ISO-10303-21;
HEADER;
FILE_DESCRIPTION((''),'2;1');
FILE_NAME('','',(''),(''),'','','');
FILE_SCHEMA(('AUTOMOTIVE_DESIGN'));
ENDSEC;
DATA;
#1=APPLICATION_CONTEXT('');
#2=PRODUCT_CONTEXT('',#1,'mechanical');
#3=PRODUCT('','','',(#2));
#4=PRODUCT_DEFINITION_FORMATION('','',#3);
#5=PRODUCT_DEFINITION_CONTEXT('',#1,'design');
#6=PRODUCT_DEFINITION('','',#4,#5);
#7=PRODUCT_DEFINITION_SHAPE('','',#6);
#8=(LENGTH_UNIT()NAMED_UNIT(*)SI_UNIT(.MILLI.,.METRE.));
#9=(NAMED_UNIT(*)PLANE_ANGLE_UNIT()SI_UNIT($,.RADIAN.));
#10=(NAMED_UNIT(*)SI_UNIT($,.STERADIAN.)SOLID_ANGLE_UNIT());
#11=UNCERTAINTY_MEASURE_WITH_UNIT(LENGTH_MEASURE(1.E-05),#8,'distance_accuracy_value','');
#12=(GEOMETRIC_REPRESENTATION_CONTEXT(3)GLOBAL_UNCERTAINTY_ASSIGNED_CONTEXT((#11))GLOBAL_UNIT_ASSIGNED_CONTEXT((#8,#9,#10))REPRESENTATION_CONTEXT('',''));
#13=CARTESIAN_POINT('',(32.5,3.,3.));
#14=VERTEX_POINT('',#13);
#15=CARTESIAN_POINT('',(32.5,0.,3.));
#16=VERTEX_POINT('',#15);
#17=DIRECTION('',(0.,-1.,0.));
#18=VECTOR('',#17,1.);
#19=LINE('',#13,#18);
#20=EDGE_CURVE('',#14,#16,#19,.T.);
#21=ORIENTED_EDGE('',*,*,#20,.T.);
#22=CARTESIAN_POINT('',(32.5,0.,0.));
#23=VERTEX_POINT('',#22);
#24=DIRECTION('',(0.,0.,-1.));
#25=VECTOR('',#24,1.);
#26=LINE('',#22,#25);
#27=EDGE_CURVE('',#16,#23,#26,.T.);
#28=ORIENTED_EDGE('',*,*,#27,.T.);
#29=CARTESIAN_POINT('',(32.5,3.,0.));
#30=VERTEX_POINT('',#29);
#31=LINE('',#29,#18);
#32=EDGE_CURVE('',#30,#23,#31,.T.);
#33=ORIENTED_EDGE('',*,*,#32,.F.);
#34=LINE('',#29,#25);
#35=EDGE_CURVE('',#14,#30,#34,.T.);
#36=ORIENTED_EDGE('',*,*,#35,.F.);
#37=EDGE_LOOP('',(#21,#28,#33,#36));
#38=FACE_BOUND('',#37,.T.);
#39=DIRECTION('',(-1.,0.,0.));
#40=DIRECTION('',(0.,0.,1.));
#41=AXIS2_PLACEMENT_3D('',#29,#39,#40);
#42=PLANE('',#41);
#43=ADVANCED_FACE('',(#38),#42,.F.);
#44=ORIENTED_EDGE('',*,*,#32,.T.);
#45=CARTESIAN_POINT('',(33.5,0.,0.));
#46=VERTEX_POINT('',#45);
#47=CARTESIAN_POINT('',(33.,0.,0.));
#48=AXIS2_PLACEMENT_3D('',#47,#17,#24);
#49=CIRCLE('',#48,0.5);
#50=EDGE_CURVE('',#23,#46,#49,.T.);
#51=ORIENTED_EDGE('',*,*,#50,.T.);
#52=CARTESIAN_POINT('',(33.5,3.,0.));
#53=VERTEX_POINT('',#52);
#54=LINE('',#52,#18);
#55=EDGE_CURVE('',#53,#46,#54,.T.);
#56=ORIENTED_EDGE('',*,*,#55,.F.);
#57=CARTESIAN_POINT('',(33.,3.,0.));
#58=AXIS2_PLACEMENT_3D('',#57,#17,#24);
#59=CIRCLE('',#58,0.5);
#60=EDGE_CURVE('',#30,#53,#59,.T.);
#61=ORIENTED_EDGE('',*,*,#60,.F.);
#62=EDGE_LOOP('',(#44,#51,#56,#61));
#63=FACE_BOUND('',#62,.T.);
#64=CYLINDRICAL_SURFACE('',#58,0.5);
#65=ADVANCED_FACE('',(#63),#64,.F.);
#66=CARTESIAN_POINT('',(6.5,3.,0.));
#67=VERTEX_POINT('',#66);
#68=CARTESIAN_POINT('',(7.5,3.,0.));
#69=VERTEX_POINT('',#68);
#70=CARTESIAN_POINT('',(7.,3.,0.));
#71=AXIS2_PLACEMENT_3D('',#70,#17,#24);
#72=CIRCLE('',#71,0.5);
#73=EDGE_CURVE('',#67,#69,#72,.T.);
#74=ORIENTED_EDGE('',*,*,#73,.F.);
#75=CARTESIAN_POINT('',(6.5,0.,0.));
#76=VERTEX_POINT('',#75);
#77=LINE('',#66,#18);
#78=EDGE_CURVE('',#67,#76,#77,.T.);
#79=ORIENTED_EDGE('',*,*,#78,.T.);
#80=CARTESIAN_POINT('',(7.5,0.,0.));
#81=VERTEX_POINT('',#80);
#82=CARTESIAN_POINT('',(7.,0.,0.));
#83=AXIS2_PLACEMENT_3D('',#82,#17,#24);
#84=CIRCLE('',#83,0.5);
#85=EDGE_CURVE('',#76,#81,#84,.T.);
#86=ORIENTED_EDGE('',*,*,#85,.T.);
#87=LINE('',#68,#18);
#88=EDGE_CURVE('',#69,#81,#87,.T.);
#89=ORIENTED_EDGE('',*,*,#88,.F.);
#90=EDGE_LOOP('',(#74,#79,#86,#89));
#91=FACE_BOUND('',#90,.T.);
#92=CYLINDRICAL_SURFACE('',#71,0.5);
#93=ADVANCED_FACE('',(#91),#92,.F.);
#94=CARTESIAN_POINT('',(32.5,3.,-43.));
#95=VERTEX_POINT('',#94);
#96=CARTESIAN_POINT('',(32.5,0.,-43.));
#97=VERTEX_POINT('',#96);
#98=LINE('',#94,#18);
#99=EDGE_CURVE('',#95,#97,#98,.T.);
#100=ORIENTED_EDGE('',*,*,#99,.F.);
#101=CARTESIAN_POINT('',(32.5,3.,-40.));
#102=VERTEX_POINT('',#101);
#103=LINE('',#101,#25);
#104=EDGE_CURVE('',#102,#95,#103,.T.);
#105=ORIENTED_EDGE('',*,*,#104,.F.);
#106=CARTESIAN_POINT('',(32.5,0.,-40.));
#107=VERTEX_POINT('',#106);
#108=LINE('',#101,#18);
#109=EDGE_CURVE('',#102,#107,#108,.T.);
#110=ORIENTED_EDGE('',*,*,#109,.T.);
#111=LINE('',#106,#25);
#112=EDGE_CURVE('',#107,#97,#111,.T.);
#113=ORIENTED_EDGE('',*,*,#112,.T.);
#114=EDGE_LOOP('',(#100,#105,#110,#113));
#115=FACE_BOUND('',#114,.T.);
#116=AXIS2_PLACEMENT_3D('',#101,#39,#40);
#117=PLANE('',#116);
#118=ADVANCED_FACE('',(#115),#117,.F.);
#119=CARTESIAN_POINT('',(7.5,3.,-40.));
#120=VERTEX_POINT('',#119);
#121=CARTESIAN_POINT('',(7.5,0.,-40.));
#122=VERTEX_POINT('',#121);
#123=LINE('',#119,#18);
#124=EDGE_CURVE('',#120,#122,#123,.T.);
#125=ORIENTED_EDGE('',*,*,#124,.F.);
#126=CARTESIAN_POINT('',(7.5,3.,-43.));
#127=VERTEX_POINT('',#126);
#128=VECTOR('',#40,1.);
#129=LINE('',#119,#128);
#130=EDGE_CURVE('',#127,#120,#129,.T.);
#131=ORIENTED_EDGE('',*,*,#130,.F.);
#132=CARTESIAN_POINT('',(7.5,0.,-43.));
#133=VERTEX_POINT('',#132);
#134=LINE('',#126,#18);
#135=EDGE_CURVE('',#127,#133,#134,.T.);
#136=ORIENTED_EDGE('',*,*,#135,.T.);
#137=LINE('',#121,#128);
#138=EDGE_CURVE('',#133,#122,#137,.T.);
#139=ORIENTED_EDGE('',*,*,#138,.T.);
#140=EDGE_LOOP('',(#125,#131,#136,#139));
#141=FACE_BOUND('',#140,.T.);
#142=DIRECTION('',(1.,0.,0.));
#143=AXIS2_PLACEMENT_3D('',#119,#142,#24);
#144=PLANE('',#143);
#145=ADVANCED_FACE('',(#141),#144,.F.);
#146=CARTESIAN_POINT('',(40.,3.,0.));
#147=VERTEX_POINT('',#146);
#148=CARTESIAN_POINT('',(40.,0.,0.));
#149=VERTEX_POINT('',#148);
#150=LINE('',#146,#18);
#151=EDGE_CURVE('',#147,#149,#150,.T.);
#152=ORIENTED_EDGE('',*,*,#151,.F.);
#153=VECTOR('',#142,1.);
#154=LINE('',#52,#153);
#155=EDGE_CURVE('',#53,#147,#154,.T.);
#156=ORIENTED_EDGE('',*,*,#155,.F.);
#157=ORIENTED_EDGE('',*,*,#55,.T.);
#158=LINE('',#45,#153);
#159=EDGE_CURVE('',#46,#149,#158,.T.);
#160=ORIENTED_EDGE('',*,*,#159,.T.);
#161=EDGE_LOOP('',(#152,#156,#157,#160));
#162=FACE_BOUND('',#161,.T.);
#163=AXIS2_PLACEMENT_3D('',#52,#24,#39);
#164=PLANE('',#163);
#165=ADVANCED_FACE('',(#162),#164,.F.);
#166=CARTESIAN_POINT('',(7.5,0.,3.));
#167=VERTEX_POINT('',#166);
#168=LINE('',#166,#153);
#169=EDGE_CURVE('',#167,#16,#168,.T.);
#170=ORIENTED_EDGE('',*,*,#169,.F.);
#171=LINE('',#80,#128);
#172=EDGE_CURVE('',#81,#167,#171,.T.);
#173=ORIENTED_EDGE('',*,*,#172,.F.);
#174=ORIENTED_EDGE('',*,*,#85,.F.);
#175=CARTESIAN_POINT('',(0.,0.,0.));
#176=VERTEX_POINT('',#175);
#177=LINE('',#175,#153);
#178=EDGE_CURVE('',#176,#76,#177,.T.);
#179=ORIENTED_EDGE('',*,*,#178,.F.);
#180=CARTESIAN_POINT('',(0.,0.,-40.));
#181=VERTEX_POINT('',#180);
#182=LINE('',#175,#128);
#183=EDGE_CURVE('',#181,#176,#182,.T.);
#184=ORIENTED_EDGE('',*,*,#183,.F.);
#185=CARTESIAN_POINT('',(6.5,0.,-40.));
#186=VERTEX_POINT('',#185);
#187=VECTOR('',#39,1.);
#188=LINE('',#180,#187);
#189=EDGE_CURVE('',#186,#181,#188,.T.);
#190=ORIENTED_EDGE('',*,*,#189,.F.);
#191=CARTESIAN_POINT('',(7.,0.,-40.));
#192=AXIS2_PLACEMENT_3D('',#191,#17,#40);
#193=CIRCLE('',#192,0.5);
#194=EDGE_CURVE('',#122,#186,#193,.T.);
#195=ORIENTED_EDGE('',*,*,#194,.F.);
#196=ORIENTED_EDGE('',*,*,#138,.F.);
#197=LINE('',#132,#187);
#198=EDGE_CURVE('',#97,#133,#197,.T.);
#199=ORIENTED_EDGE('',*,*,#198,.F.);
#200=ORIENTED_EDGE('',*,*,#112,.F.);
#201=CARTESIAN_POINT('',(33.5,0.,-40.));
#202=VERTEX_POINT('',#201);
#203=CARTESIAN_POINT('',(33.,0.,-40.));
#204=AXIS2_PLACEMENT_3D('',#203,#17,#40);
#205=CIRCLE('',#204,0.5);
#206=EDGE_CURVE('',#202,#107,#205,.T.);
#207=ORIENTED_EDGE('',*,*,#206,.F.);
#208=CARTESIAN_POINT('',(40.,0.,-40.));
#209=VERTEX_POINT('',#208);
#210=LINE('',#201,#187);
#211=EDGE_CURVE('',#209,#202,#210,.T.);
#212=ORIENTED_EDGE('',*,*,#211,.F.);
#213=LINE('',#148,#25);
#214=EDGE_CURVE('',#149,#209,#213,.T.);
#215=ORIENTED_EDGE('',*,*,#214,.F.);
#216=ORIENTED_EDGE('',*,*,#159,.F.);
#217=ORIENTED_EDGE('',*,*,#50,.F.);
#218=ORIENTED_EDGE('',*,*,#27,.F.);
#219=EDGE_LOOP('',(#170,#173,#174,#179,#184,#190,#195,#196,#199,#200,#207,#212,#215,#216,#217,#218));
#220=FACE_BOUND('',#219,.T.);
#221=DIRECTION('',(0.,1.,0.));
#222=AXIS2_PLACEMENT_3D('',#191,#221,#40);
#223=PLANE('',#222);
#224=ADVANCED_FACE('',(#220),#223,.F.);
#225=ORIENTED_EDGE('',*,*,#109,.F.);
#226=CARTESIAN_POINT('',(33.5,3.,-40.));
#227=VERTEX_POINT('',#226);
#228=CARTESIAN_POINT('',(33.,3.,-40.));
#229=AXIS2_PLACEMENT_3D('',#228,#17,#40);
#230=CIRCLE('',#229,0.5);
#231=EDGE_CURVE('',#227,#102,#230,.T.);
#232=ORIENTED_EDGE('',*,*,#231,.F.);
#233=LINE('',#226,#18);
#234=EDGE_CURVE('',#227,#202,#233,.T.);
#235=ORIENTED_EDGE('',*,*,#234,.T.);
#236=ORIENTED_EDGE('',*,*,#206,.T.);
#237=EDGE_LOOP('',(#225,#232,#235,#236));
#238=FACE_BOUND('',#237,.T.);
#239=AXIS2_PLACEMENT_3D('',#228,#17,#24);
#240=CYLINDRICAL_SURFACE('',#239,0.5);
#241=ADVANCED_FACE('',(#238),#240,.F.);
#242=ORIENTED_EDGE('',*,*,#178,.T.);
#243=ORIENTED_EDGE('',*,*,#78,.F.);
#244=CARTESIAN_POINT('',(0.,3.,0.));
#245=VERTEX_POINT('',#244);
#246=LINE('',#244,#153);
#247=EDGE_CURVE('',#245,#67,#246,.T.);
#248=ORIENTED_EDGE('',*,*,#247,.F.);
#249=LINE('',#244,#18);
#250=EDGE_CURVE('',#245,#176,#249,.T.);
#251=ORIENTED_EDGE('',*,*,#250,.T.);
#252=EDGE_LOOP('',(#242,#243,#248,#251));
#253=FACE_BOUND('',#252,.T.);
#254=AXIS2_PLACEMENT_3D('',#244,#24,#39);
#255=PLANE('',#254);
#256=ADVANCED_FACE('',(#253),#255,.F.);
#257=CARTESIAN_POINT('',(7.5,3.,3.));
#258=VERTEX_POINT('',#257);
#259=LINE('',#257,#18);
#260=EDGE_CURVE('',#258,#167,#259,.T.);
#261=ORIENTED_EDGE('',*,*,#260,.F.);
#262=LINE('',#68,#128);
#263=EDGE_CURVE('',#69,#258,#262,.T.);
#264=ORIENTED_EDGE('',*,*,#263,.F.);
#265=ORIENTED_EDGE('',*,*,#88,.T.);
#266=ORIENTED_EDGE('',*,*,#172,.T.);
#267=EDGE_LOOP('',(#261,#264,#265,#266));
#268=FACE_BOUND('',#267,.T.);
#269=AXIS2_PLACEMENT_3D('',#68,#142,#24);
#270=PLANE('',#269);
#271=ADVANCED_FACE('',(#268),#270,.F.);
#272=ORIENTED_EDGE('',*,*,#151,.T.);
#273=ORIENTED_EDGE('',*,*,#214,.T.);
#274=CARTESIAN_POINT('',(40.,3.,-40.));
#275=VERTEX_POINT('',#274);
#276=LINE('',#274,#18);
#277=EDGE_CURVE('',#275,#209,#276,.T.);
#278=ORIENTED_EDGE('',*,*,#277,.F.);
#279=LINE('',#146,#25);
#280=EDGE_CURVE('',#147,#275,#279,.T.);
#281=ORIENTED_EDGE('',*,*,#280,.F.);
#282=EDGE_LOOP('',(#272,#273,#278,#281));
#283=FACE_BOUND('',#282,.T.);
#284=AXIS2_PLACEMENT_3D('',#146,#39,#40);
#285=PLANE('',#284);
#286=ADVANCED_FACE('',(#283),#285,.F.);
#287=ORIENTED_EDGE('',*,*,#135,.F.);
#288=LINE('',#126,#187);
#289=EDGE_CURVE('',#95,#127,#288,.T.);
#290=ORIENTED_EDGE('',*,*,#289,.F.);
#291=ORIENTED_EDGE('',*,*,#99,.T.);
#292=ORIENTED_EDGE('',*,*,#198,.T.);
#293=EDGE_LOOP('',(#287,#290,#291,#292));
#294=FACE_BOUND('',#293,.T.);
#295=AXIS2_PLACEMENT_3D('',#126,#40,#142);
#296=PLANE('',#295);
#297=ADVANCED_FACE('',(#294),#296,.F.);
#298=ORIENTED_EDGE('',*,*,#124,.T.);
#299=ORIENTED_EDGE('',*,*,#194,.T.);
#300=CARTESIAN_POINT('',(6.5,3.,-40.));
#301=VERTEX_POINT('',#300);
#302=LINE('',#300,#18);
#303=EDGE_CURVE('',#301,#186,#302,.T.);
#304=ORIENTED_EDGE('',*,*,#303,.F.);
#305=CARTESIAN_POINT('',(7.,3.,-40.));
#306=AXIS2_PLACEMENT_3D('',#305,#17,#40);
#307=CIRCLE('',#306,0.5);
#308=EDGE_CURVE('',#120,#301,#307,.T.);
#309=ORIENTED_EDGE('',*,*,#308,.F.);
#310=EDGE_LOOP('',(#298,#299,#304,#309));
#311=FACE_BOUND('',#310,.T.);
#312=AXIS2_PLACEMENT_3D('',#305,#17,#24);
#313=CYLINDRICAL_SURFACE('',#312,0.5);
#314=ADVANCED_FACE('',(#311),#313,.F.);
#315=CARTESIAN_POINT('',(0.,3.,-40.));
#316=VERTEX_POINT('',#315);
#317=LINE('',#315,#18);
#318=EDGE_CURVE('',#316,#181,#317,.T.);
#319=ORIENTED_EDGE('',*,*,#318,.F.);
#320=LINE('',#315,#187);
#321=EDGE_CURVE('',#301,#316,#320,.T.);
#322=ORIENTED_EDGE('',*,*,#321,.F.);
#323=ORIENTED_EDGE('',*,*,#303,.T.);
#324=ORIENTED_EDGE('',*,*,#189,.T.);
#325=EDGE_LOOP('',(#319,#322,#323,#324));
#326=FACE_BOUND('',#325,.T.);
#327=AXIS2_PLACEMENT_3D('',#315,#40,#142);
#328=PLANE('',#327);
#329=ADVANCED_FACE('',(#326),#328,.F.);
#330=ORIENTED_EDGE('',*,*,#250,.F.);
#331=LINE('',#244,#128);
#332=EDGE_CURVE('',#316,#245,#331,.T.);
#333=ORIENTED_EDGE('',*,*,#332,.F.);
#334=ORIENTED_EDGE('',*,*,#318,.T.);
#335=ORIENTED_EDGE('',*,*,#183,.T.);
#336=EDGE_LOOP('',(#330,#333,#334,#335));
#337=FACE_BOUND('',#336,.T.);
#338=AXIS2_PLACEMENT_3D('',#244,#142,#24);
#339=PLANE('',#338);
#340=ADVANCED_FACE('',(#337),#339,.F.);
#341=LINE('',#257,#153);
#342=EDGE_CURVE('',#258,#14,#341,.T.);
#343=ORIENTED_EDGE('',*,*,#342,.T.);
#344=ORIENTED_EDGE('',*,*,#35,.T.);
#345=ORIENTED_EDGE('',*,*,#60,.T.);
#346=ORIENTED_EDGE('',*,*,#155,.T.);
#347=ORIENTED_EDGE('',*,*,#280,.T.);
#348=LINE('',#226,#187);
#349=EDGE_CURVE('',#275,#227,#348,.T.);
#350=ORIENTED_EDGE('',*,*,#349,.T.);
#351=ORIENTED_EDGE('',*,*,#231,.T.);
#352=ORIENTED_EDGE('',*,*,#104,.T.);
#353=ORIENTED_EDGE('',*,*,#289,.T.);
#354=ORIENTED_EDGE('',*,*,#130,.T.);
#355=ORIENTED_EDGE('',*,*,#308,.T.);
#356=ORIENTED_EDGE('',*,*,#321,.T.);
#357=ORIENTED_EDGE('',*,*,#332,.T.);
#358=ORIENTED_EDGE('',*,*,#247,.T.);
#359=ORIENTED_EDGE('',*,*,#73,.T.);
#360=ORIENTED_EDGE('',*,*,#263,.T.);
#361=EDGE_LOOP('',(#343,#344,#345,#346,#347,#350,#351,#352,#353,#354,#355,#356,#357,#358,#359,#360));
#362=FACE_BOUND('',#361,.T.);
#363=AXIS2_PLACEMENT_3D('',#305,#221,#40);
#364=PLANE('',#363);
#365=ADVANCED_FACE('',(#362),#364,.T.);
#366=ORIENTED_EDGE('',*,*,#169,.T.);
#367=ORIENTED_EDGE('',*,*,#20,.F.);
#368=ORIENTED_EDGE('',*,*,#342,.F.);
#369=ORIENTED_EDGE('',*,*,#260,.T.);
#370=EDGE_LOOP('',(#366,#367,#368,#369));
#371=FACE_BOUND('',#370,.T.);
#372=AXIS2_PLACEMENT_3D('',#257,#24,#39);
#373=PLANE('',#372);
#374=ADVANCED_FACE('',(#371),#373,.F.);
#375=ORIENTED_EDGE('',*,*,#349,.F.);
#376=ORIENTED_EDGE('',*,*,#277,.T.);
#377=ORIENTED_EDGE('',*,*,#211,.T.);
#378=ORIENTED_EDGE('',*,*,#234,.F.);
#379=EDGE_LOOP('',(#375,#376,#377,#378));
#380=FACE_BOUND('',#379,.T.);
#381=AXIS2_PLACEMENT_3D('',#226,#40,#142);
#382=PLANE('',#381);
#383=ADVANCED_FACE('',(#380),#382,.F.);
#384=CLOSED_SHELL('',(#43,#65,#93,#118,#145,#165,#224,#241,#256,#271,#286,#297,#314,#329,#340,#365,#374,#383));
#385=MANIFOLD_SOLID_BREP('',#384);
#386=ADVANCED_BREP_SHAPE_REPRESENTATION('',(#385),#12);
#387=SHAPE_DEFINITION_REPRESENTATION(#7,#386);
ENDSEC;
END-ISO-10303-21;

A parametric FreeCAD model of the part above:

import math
import FreeCAD as App
import Part
import Sketcher

doc = App.newDocument("Part")
body = doc.addObject("PartDesign::Body", "Body")

# Sketch on XZ plane
sketch1 = body.newObject("Sketcher::SketchObject", "Sketch")
sketch1.AttachmentSupport = (doc.getObject("XZ_Plane"), [""])
sketch1.MapMode = "FlatFace"
sketch1.addGeometry([
    Part.LineSegment(App.Vector(0, 0, 0), App.Vector(6.5, 0, 0)),  # 0
    Part.ArcOfCircle(Part.Circle(App.Vector(7, 0, 0), App.Vector(0, 0, 1), 0.5), math.radians(180), math.radians(360)),  # 1
    Part.LineSegment(App.Vector(7.5, 0, 0), App.Vector(7.5, 3, 0)),  # 2
    Part.LineSegment(App.Vector(7.5, 3, 0), App.Vector(32.5, 3, 0)),  # 3
    Part.LineSegment(App.Vector(32.5, 3, 0), App.Vector(32.5, 0, 0)),  # 4
    Part.ArcOfCircle(Part.Circle(App.Vector(33, 0, 0), App.Vector(0, 0, 1), 0.5), math.radians(180), math.radians(360)),  # 5
    Part.LineSegment(App.Vector(33.5, 0, 0), App.Vector(40, 0, 0)),  # 6
    Part.LineSegment(App.Vector(40, 0, 0), App.Vector(40, -40, 0)),  # 7
    Part.LineSegment(App.Vector(40, -40, 0), App.Vector(33.5, -40, 0)),  # 8
    Part.ArcOfCircle(Part.Circle(App.Vector(33, -40, 0), App.Vector(0, 0, 1), 0.5), math.radians(0), math.radians(180)),  # 9
    Part.LineSegment(App.Vector(32.5, -40, 0), App.Vector(32.5, -43, 0)),  # 10
    Part.LineSegment(App.Vector(32.5, -43, 0), App.Vector(7.5, -43, 0)),  # 11
    Part.LineSegment(App.Vector(7.5, -43, 0), App.Vector(7.5, -40, 0)),  # 12
    Part.ArcOfCircle(Part.Circle(App.Vector(7, -40, 0), App.Vector(0, 0, 1), 0.5), math.radians(0), math.radians(180)),  # 13
    Part.LineSegment(App.Vector(6.5, -40, 0), App.Vector(0, -40, 0)),  # 14
    Part.LineSegment(App.Vector(0, -40, 0), App.Vector(0, 0, 0)),  # 15
], False)
sketch1.addConstraint([
    Sketcher.Constraint("Coincident", 0, 2, 1, 1),
    Sketcher.Constraint("Tangent", 1, 2, 2, 1),
    Sketcher.Constraint("Coincident", 2, 2, 3, 1),
    Sketcher.Constraint("Coincident", 3, 2, 4, 1),
    Sketcher.Constraint("Tangent", 4, 2, 5, 1),
    Sketcher.Constraint("Coincident", 5, 2, 6, 1),
    Sketcher.Constraint("Coincident", 6, 2, 7, 1),
    Sketcher.Constraint("Coincident", 7, 2, 8, 1),
    Sketcher.Constraint("Coincident", 8, 2, 9, 1),
    Sketcher.Constraint("Tangent", 9, 2, 10, 1),
    Sketcher.Constraint("Coincident", 10, 2, 11, 1),
    Sketcher.Constraint("Coincident", 11, 2, 12, 1),
    Sketcher.Constraint("Tangent", 12, 2, 13, 1),
    Sketcher.Constraint("Coincident", 13, 2, 14, 1),
    Sketcher.Constraint("Coincident", 14, 2, 15, 1),
    Sketcher.Constraint("Coincident", 15, 2, 0, 1),
    Sketcher.Constraint("Horizontal", 0),
    Sketcher.Constraint("Vertical", 2),
    Sketcher.Constraint("Horizontal", 3),
    Sketcher.Constraint("Vertical", 4),
    Sketcher.Constraint("Horizontal", 6),
    Sketcher.Constraint("Vertical", 7),
    Sketcher.Constraint("Horizontal", 8),
    Sketcher.Constraint("Vertical", 10),
    Sketcher.Constraint("Horizontal", 11),
    Sketcher.Constraint("Vertical", 12),
    Sketcher.Constraint("Horizontal", 14),
    Sketcher.Constraint("Vertical", 15),
    Sketcher.Constraint("Coincident", 15, 2, -1, 1),
    Sketcher.Constraint("Equal", 1, 5),
    Sketcher.Constraint("Equal", 5, 9),
    Sketcher.Constraint("Equal", 9, 13),
    Sketcher.Constraint("PointOnObject", 1, 3, -1),
    Sketcher.Constraint("PointOnObject", 5, 3, -1),
    Sketcher.Constraint("PointOnObject", 5, 2, -1),
    Sketcher.Constraint("Horizontal", 9, 3, 13, 3),
    Sketcher.Constraint("Horizontal", 13, 3, 7, 2),
    Sketcher.Constraint("Horizontal", 12, 2, 13, 2),
    Sketcher.Constraint("Vertical", 5, 3, 9, 3),
    Sketcher.Constraint("Vertical", 1, 3, 13, 3),
    Sketcher.Constraint("Equal", 0, 6),
    Sketcher.Constraint("Equal", 4, 10),
    Sketcher.Constraint("Radius", 1, 0.5),
    Sketcher.Constraint("DistanceX", 3, 1, 3, 2, 25.0),
    Sketcher.Constraint("DistanceY", 2, 1, 2, 2, 3.0),
    Sketcher.Constraint("DistanceY", 7, 2, 7, 1, 40.0),
    Sketcher.Constraint("DistanceX", 0, 1, 0, 2, 6.5),
])
pad1 = body.newObject("PartDesign::Pad", "Pad")
pad1.Profile = sketch1
pad1.Length = 3
pad1.Reversed = True

doc.recompute()
